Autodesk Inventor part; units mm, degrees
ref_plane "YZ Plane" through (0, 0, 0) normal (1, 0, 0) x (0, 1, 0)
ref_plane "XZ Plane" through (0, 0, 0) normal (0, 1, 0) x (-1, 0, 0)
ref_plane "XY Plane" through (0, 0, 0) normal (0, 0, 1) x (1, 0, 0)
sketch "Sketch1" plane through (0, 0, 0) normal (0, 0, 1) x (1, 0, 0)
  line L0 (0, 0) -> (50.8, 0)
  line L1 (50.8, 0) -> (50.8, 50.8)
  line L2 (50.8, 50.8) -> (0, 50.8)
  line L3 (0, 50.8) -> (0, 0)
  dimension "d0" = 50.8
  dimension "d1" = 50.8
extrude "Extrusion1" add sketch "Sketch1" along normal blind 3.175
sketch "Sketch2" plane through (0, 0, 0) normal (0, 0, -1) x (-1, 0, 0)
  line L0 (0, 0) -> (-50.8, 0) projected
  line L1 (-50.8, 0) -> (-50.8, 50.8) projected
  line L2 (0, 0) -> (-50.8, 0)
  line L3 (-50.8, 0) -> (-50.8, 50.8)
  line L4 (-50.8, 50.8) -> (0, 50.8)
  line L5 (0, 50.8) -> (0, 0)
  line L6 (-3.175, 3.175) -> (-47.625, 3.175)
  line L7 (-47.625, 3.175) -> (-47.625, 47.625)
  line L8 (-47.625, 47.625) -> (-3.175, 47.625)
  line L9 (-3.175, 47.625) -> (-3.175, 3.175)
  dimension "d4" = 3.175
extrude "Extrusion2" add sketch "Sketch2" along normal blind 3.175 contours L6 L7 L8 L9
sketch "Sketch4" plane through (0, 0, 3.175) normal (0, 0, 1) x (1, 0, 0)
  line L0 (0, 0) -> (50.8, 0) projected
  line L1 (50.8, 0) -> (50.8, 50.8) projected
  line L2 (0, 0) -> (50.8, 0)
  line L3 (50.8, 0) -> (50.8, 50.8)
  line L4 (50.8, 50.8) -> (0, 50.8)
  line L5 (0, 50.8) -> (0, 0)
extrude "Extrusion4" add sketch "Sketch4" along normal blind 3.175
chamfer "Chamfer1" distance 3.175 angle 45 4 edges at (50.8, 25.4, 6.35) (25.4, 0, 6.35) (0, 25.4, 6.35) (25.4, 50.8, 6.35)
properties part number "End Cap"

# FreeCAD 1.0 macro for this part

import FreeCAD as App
import Part
import Sketcher

V = App.Vector
Q = App.Units.Quantity


def edges_at(feature, points):
    """Names of the edges that pass closest to the given points."""
    edges = feature.Shape.Edges
    near = lambda p: min(range(len(edges)), key=lambda i: edges[i].distToShape(Part.Vertex(*p))[0])
    return sorted({f"Edge{near(p) + 1}" for p in points})


def add_polygon(sketch, points):
    """Adds a closed chain of lines whose ends are joined by coincident constraints."""
    first, n = sketch.GeometryCount, len(points)
    for a, b in zip(points, points[1:] + points[:1]):
        sketch.addGeometry(Part.LineSegment(App.Vector(*a, 0), App.Vector(*b, 0)), False)
    for i in range(n):
        sketch.addConstraint(Sketcher.Constraint("Coincident", first + i, 2, first + (i + 1) % n, 1))

doc = App.newDocument("Part")
body = doc.addObject("PartDesign::Body", "Body")

# Sketch on XY plane
sketch1 = doc.addObject("Sketcher::SketchObject", "Sketch")
body.addObject(sketch1)
sketch1.AttachmentSupport = (doc.XY_Plane, [""])
sketch1.MapMode = "FlatFace"
add_polygon(sketch1, [(0, 50.8), (0, 0), (50.8, 0), (50.8, 50.8)])  # lines 0-3
sketch1.addConstraint([
    Sketcher.Constraint("Vertical", 0),
    Sketcher.Constraint("Horizontal", 1),
    Sketcher.Constraint("Vertical", 2),
    Sketcher.Constraint("Horizontal", 3),
    Sketcher.Constraint("Coincident", 0, 2, -1, 1),
    Sketcher.Constraint("Equal", 3, 0),
    Sketcher.Constraint("DistanceX", 1, 1, 1, 2, Q("2 in")),
])
pad1 = doc.addObject("PartDesign::Pad", "Pad")
body.addObject(pad1)
pad1.Profile = sketch1
pad1.Length = Q("0.125 in")

# Sketch on XY plane
sketch2 = doc.addObject("Sketcher::SketchObject", "Sketch001")
body.addObject(sketch2)
sketch2.AttachmentSupport = (doc.XY_Plane, [""])
sketch2.MapMode = "FlatFace"
add_polygon(sketch2, [(47.625, 3.175), (3.175, 3.175), (3.175, 47.625), (47.625, 47.625)])  # lines 0-3
sketch2.addConstraint([
    Sketcher.Constraint("Horizontal", 0),
    Sketcher.Constraint("Vertical", 1),
    Sketcher.Constraint("Horizontal", 2),
    Sketcher.Constraint("Vertical", 3),
    Sketcher.Constraint("Equal", 2, 1),
    Sketcher.Constraint("DistanceX", -1, 1, 0, 2, Q("0.125 in")),
    Sketcher.Constraint("DistanceY", -1, 1, 0, 2, Q("0.125 in")),
    Sketcher.Constraint("DistanceX", 0, 2, 0, 1, Q("1.75 in")),
])
pad2 = doc.addObject("PartDesign::Pad", "Pad001")
body.addObject(pad2)
pad2.Profile = sketch2
pad2.Length = Q("0.125 in")
pad2.Reversed = True

# Sketch on XY plane
sketch3 = doc.addObject("Sketcher::SketchObject", "Sketch002")
body.addObject(sketch3)
sketch3.AttachmentSupport = (doc.XY_Plane, [""])
sketch3.MapMode = "FlatFace"
sketch3.AttachmentOffset = App.Placement(V(0, 0, 0.125 * 25.4), App.Rotation())
add_polygon(sketch3, [(0, 50.8), (0, 0), (50.8, 0), (50.8, 50.8)])  # lines 0-3
sketch3.addConstraint([
    Sketcher.Constraint("Vertical", 0),
    Sketcher.Constraint("Horizontal", 1),
    Sketcher.Constraint("Vertical", 2),
    Sketcher.Constraint("Horizontal", 3),
    Sketcher.Constraint("Coincident", 0, 2, -1, 1),
    Sketcher.Constraint("Equal", 3, 0),
    Sketcher.Constraint("DistanceX", 1, 1, 1, 2, Q("2 in")),
])
pad3 = doc.addObject("PartDesign::Pad", "Pad002")
body.addObject(pad3)
pad3.Profile = sketch3
pad3.Length = Q("0.125 in")
doc.recompute()

chamfer = doc.addObject("PartDesign::Chamfer", "Chamfer")
body.addObject(chamfer)
chamfer.Base = (pad3, edges_at(pad3, [
    (50.8, 25.4, 6.35),
    (25.4, 0, 6.35),
    (0, 25.4, 6.35),
    (25.4, 50.8, 6.35),
]))
chamfer.Size = Q("0.125 in")

doc.recompute()
